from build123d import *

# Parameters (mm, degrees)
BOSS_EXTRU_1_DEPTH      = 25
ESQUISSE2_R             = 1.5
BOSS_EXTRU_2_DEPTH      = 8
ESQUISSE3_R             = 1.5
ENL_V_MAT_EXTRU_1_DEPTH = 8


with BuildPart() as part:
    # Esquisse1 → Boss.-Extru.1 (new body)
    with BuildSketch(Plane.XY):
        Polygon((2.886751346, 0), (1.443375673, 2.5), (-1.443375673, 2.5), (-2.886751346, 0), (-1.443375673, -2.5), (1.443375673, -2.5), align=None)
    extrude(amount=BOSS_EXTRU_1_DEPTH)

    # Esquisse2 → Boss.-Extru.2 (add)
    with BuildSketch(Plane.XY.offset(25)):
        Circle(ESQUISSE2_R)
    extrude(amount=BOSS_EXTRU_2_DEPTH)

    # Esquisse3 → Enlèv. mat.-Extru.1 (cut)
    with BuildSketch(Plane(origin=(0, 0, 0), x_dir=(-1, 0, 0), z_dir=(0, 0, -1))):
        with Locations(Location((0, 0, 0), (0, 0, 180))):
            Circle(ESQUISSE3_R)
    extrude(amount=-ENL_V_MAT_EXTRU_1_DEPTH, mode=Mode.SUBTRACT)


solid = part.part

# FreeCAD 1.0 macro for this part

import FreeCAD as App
import Part
import Sketcher
from FreeCAD import Vector
Q = App.Units.Quantity

doc = App.newDocument("Part")
body = doc.addObject("PartDesign::Body", "Body")

# Sketch on XY plane
sketch1 = body.newObject("Sketcher::SketchObject", "Sketch")
sketch1.AttachmentSupport = (doc.getObject("XY_Plane"), [""])
sketch1.MapMode = "FlatFace"
sketch1.addGeometry([
    Part.LineSegment(Vector(2.9, 0, 0), Vector(1.4, 2.5, 0)),  # 0
    Part.LineSegment(Vector(1.4, 2.5, 0), Vector(-1.4, 2.5, 0)),  # 1
    Part.LineSegment(Vector(-1.4, 2.5, 0), Vector(-2.9, 0, 0)),  # 2
    Part.LineSegment(Vector(-2.9, 0, 0), Vector(-1.4, -2.5, 0)),  # 3
    Part.LineSegment(Vector(-1.4, -2.5, 0), Vector(1.4, -2.5, 0)),  # 4
    Part.LineSegment(Vector(1.4, -2.5, 0), Vector(2.9, 0, 0)),  # 5
], False)
sketch1.addConstraint([
    Sketcher.Constraint("Coincident", 0, 2, 1, 1),
    Sketcher.Constraint("Coincident", 1, 2, 2, 1),
    Sketcher.Constraint("Coincident", 2, 2, 3, 1),
    Sketcher.Constraint("Coincident", 3, 2, 4, 1),
    Sketcher.Constraint("Coincident", 4, 2, 5, 1),
    Sketcher.Constraint("Coincident", 5, 2, 0, 1),
    Sketcher.Constraint("Horizontal", 1),
    Sketcher.Constraint("Horizontal", 4),
    Sketcher.Constraint("Symmetric", 0, 2, 3, 2, -1, 1),
    Sketcher.Constraint("Symmetric", 2, 2, 5, 2, -1, 1),
    Sketcher.Constraint("PointOnObject", 2, 2, -1),
    Sketcher.Constraint("Parallel", 2, 5),
    Sketcher.Constraint("Vertical", 1, 2, 3, 2),
    Sketcher.Constraint("Angle", 0, Q("120 deg")),
    Sketcher.Constraint("DistanceY", 3, 2, 1, 2, 5.0),
    Sketcher.Constraint("DistanceX", 1, 2, 1, 1, 2.886751),
])
pad1 = body.newObject("PartDesign::Pad", "Pad")
pad1.Profile = sketch1
pad1.Length = 25

# Sketch on XY plane
sketch2 = body.newObject("Sketcher::SketchObject", "Sketch001")
sketch2.AttachmentSupport = (doc.getObject("XY_Plane"), [""])
sketch2.MapMode = "FlatFace"
sketch2.AttachmentOffset = App.Placement(Vector(0, 0, 25), App.Rotation())
sketch2.addGeometry(Part.Circle(Vector(0, 0, 0), Vector(0, 0, 1), 1.5), False)
sketch2.addConstraint([
    Sketcher.Constraint("Coincident", 0, 3, -1, 1),
    Sketcher.Constraint("Diameter", 0, 3.0),
])
pad2 = body.newObject("PartDesign::Pad", "Pad001")
pad2.Profile = sketch2
pad2.Length = 8

# Sketch on XY plane
sketch3 = body.newObject("Sketcher::SketchObject", "Sketch002")
sketch3.AttachmentSupport = (doc.getObject("XY_Plane"), [""])
sketch3.MapMode = "FlatFace"
sketch3.addGeometry(Part.Circle(Vector(0, 0, 0), Vector(0, 0, 1), 1.5), False)
sketch3.addConstraint([
    Sketcher.Constraint("Coincident", 0, 3, -1, 1),
    Sketcher.Constraint("Diameter", 0, 3.0),
])
pocket1 = body.newObject("PartDesign::Pocket", "Pocket")
pocket1.Profile = sketch3
pocket1.Length = 8
pocket1.Reversed = True

doc.recompute()
